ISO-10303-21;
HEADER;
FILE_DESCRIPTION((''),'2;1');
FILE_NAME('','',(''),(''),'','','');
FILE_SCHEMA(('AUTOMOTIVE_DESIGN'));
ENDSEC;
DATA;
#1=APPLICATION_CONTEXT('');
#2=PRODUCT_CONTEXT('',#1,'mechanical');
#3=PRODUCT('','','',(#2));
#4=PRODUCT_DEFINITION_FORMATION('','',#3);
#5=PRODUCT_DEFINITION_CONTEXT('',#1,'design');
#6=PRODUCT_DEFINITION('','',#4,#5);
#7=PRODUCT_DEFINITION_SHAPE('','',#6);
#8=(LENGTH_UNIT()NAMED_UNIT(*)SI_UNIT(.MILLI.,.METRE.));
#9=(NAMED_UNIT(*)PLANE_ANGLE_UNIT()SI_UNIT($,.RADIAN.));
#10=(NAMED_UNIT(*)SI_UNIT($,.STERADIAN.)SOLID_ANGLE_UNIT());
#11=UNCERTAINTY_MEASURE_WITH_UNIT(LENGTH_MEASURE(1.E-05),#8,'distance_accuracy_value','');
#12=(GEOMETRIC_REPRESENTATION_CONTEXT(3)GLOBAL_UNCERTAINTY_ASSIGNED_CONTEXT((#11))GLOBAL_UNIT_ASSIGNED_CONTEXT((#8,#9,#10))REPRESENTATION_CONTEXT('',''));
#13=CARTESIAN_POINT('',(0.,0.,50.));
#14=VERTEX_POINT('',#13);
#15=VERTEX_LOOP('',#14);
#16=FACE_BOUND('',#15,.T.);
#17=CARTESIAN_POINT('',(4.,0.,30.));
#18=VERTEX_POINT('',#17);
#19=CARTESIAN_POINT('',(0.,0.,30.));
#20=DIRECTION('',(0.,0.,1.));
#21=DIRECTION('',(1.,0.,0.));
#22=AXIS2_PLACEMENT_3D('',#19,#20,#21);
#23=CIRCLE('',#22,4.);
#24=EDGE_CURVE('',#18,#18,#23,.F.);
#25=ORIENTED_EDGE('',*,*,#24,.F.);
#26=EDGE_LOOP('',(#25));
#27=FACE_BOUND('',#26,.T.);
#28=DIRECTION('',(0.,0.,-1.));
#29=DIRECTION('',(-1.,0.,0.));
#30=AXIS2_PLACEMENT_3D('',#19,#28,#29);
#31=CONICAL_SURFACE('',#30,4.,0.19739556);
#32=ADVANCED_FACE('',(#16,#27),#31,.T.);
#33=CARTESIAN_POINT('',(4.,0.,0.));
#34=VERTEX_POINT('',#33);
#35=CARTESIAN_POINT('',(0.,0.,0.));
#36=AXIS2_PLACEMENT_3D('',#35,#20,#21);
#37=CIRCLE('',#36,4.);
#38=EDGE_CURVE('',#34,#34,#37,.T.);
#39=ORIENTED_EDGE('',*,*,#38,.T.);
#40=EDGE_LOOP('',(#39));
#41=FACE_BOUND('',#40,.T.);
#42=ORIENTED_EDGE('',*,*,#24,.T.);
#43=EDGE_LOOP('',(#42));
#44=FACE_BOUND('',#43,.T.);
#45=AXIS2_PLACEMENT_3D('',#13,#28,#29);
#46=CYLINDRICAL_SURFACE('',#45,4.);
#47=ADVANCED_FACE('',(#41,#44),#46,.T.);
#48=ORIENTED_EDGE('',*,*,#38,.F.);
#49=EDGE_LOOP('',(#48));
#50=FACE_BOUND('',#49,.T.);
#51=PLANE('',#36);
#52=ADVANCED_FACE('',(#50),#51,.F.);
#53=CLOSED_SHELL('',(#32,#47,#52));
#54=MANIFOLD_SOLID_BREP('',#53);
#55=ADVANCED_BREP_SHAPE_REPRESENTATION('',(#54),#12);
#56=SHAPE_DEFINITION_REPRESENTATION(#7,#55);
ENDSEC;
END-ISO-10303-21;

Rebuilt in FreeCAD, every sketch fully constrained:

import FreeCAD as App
import Part
import Sketcher
from FreeCAD import Vector


def edges_at(feature, points):
    """Names of the edges that pass closest to the given points."""
    edges = feature.Shape.Edges
    near = lambda p: min(range(len(edges)), key=lambda i: edges[i].distToShape(Part.Vertex(*p))[0])
    return sorted({f"Edge{near(p) + 1}" for p in points})

doc = App.newDocument("Part")
body = doc.addObject("PartDesign::Body", "Body")

sketch1 = doc.addObject("Sketcher::SketchObject", "Sketch")
body.addObject(sketch1)
sketch1.AttachmentSupport = (doc.XY_Plane, [""])
sketch1.MapMode = "FlatFace"
sketch1.addGeometry(Part.Circle(Vector(0, 0, 0), Vector(0, 0, 1), 4), False)
sketch1.addConstraint([
    Sketcher.Constraint("Coincident", 0, 3, -1, 1),
    Sketcher.Constraint("Diameter", 0, 8.0),
])
pad1 = doc.addObject("PartDesign::Pad", "Pad")
body.addObject(pad1)
pad1.Profile = sketch1
pad1.Length = 50
doc.recompute()

chamfer = doc.addObject("PartDesign::Chamfer", "Chamfer")
body.addObject(chamfer)
chamfer.Base = (pad1, edges_at(pad1, [(-4, 0, 50)]))
chamfer.ChamferType = "Two distances"
chamfer.Size = 20
chamfer.Size2 = 4

doc.recompute()
